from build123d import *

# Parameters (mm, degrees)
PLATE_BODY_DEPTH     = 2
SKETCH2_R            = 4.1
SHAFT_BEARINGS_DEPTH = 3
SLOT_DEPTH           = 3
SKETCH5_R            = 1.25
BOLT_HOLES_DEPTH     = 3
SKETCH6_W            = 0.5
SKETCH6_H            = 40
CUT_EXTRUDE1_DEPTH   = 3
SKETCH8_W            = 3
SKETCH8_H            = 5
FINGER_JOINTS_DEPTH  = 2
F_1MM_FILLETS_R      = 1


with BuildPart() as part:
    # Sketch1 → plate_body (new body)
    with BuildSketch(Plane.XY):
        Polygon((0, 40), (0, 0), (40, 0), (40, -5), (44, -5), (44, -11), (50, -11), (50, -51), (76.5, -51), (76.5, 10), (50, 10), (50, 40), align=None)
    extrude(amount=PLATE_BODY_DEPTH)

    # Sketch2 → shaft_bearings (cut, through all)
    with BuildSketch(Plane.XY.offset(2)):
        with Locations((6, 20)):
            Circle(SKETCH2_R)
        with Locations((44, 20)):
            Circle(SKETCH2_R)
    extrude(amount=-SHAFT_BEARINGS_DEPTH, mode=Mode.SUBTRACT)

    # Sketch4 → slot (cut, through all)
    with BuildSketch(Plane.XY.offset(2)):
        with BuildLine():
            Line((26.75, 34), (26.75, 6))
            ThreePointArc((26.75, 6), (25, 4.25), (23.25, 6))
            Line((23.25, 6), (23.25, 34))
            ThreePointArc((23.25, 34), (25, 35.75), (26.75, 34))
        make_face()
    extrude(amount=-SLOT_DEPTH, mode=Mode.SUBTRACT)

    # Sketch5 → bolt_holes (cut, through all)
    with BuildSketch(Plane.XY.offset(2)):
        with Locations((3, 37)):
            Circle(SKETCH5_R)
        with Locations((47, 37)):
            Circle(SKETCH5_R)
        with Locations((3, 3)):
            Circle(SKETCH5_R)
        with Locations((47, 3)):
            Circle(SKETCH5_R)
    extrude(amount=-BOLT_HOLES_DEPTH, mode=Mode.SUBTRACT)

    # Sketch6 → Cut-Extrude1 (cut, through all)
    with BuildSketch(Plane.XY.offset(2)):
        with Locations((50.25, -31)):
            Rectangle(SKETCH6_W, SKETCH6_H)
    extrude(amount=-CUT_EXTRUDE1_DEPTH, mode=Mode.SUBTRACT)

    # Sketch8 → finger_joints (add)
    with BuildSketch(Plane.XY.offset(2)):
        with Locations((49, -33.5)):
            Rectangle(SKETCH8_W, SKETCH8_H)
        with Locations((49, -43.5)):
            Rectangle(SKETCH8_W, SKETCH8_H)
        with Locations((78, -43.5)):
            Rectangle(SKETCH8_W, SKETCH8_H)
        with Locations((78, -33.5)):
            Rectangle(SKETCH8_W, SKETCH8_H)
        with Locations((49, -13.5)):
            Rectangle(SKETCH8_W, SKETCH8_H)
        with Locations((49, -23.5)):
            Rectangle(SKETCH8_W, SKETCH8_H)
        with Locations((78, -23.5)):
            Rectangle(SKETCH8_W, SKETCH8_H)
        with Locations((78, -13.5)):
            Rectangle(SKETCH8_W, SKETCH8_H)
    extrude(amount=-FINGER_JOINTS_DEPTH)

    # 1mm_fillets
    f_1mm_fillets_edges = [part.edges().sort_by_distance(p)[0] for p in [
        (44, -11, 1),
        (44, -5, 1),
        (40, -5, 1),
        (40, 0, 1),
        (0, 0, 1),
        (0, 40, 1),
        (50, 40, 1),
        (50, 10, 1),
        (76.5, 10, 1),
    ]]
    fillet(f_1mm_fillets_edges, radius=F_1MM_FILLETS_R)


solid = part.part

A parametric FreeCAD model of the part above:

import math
import FreeCAD as App
import Part
import Sketcher
Q = App.Units.Quantity


def edges_at(feature, points):
    """Names of the edges that pass closest to the given points."""
    edges = feature.Shape.Edges
    near = lambda p: min(range(len(edges)), key=lambda i: edges[i].distToShape(Part.Vertex(*p))[0])
    return sorted({f"Edge{near(p) + 1}" for p in points})


def add_polygon(sketch, points):
    """Adds a closed chain of lines whose ends are joined by coincident constraints."""
    first, n = sketch.GeometryCount, len(points)
    for a, b in zip(points, points[1:] + points[:1]):
        sketch.addGeometry(Part.LineSegment(App.Vector(*a, 0), App.Vector(*b, 0)), False)
    for i in range(n):
        sketch.addConstraint(Sketcher.Constraint("Coincident", first + i, 2, first + (i + 1) % n, 1))

doc = App.newDocument("Part")
body = doc.addObject("PartDesign::Body", "Body")

sketch1 = body.newObject("Sketcher::SketchObject", "Sketch")
sketch1.AttachmentSupport = (doc.getObject("XY_Plane"), [""])
sketch1.MapMode = "FlatFace"
add_polygon(sketch1, [(0, 40), (0, 0), (40, 0), (40, -5), (44, -5), (44, -11), (50, -11), (50, -51), (76.5, -51), (76.5, 10), (50, 10), (50, 40)])
sketch1.addConstraint([
    Sketcher.Constraint("Vertical", 0),
    Sketcher.Constraint("Horizontal", 1),
    Sketcher.Constraint("Vertical", 2),
    Sketcher.Constraint("Horizontal", 3),
    Sketcher.Constraint("Vertical", 4),
    Sketcher.Constraint("Horizontal", 5),
    Sketcher.Constraint("Vertical", 6),
    Sketcher.Constraint("Horizontal", 7),
    Sketcher.Constraint("Vertical", 8),
    Sketcher.Constraint("Horizontal", 9),
    Sketcher.Constraint("Vertical", 10),
    Sketcher.Constraint("Horizontal", 11),
    Sketcher.Constraint("Coincident", 0, 2, -1, 1),
    Sketcher.Constraint("Vertical", 6, 2, 9, 2),
    Sketcher.Constraint("Equal", 1, 0),
    Sketcher.Constraint("Equal", 5, 4),
    Sketcher.Constraint("Equal", 0, 6),
    Sketcher.Constraint("DistanceX", 1, 1, 1, 2, Q("40 mm")),
    Sketcher.Constraint("DistanceX", 3, 1, 3, 2, Q("4 mm")),
    Sketcher.Constraint("DistanceX", 5, 1, 5, 2, Q("6 mm")),
    Sketcher.Constraint("DistanceY", 2, 2, 2, 1, Q("5 mm")),
    Sketcher.Constraint("DistanceY", 8, 1, 8, 2, Q("61 mm")),
    Sketcher.Constraint("DistanceX", 7, 1, 7, 2, Q("26.5 mm")),
])
pad1 = body.newObject("PartDesign::Pad", "Pad")
pad1.Profile = sketch1
pad1.Length = 2

sketch2 = body.newObject("Sketcher::SketchObject", "Sketch001")
sketch2.AttachmentSupport = (doc.getObject("XY_Plane"), [""])
sketch2.MapMode = "FlatFace"
sketch2.AttachmentOffset = App.Placement(App.Vector(0, 0, 2), App.Rotation())
sketch2.addGeometry([
    Part.Circle(App.Vector(6, 20, 0), App.Vector(0, 0, 1), 4.1),
    Part.Circle(App.Vector(44, 20, 0), App.Vector(0, 0, 1), 4.1),
], False)
sketch2.addConstraint([
    Sketcher.Constraint("Equal", 0, 1),
    Sketcher.Constraint("Horizontal", 0, 3, 1, 3),
    Sketcher.Constraint("Diameter", 0, Q("8.2 mm")),
    Sketcher.Constraint("DistanceX", -1, 1, 0, 3, Q("6 mm")),
    Sketcher.Constraint("DistanceY", -1, 1, 0, 3, Q("20 mm")),
    Sketcher.Constraint("DistanceX", -1, 1, 1, 3, Q("44 mm")),
])
pocket1 = body.newObject("PartDesign::Pocket", "Pocket")
pocket1.Profile = sketch2
pocket1.Type = "ThroughAll"

sketch3 = body.newObject("Sketcher::SketchObject", "Sketch002")
sketch3.AttachmentSupport = (doc.getObject("XY_Plane"), [""])
sketch3.MapMode = "FlatFace"
sketch3.AttachmentOffset = App.Placement(App.Vector(0, 0, 2), App.Rotation())
sketch3.addGeometry([
    Part.LineSegment(App.Vector(26.8, 6, 0), App.Vector(26.8, 34, 0)),
    Part.ArcOfCircle(Part.Circle(App.Vector(25, 34, 0), App.Vector(0, 0, 1), 1.8), math.radians(0), math.radians(180)),
    Part.LineSegment(App.Vector(23.2, 34, 0), App.Vector(23.2, 6, 0)),
    Part.ArcOfCircle(Part.Circle(App.Vector(25, 6, 0), App.Vector(0, 0, 1), 1.8), math.radians(180), math.radians(360)),
], False)
sketch3.addConstraint([
    Sketcher.Constraint("Tangent", 0, 2, 1, 1),
    Sketcher.Constraint("Tangent", 1, 2, 2, 1),
    Sketcher.Constraint("Tangent", 2, 2, 3, 1),
    Sketcher.Constraint("Tangent", 3, 2, 0, 1),
    Sketcher.Constraint("Vertical", 0),
    Sketcher.Constraint("Vertical", 2),
    Sketcher.Constraint("DistanceY", 0, 1, 0, 2, Q("28 mm")),
    Sketcher.Constraint("Radius", 1, Q("1.75 mm")),
    Sketcher.Constraint("DistanceX", -1, 1, 1, 3, Q("25 mm")),
    Sketcher.Constraint("DistanceY", -1, 1, 1, 3, Q("34 mm")),
])
pocket2 = body.newObject("PartDesign::Pocket", "Pocket001")
pocket2.Profile = sketch3
pocket2.Type = "ThroughAll"

sketch4 = body.newObject("Sketcher::SketchObject", "Sketch003")
sketch4.AttachmentSupport = (doc.getObject("XY_Plane"), [""])
sketch4.MapMode = "FlatFace"
sketch4.AttachmentOffset = App.Placement(App.Vector(0, 0, 2), App.Rotation())
sketch4.addGeometry([
    Part.Circle(App.Vector(3, 37, 0), App.Vector(0, 0, 1), 1.2),
    Part.Circle(App.Vector(47, 37, 0), App.Vector(0, 0, 1), 1.2),
    Part.Circle(App.Vector(3, 3, 0), App.Vector(0, 0, 1), 1.2),
    Part.Circle(App.Vector(47, 3, 0), App.Vector(0, 0, 1), 1.2),
], False)
sketch4.addConstraint([
    Sketcher.Constraint("Equal", 0, 1),
    Sketcher.Constraint("Equal", 1, 2),
    Sketcher.Constraint("Equal", 2, 3),
    Sketcher.Constraint("Horizontal", 0, 3, 1, 3),
    Sketcher.Constraint("Horizontal", 2, 3, 3, 3),
    Sketcher.Constraint("Vertical", 0, 3, 2, 3),
    Sketcher.Constraint("Vertical", 1, 3, 3, 3),
    Sketcher.Constraint("Diameter", 0, Q("2.5 mm")),
    Sketcher.Constraint("DistanceX", -1, 1, 0, 3, Q("3 mm")),
    Sketcher.Constraint("DistanceY", -1, 1, 0, 3, Q("37 mm")),
    Sketcher.Constraint("DistanceX", -1, 1, 1, 3, Q("47 mm")),
    Sketcher.Constraint("DistanceY", -1, 1, 2, 3, Q("3 mm")),
])
pocket3 = body.newObject("PartDesign::Pocket", "Pocket002")
pocket3.Profile = sketch4
pocket3.Type = "ThroughAll"

sketch5 = body.newObject("Sketcher::SketchObject", "Sketch004")
sketch5.AttachmentSupport = (doc.getObject("XY_Plane"), [""])
sketch5.MapMode = "FlatFace"
sketch5.AttachmentOffset = App.Placement(App.Vector(0, 0, 2), App.Rotation())
add_polygon(sketch5, [(50, -11), (50, -51), (50.5, -51), (50.5, -11)])
sketch5.addConstraint([
    Sketcher.Constraint("Vertical", 0),
    Sketcher.Constraint("Horizontal", 1),
    Sketcher.Constraint("Vertical", 2),
    Sketcher.Constraint("Horizontal", 3),
    Sketcher.Constraint("DistanceY", 0, 2, 0, 1, Q("40 mm")),
    Sketcher.Constraint("DistanceX", 1, 1, 1, 2, Q("0.5 mm")),
    Sketcher.Constraint("DistanceX", -1, 1, 0, 2, Q("50 mm")),
    Sketcher.Constraint("DistanceY", 0, 2, -1, 1, Q("51 mm")),
])
pocket4 = body.newObject("PartDesign::Pocket", "Pocket003")
pocket4.Profile = sketch5
pocket4.Type = "ThroughAll"

sketch6 = body.newObject("Sketcher::SketchObject", "Sketch005")
sketch6.AttachmentSupport = (doc.getObject("XY_Plane"), [""])
sketch6.MapMode = "FlatFace"
sketch6.AttachmentOffset = App.Placement(App.Vector(0, 0, 2), App.Rotation())
add_polygon(sketch6, [(47.5, -31), (47.5, -36), (50.5, -36), (50.5, -31)])
add_polygon(sketch6, [(47.5, -41), (47.5, -46), (50.5, -46), (50.5, -41)])
add_polygon(sketch6, [(76.5, -41), (76.5, -46), (79.5, -46), (79.5, -41)])
add_polygon(sketch6, [(76.5, -31), (76.5, -36), (79.5, -36), (79.5, -31)])
add_polygon(sketch6, [(47.5, -11), (47.5, -16), (50.5, -16), (50.5, -11)])
add_polygon(sketch6, [(47.5, -21), (47.5, -26), (50.5, -26), (50.5, -21)])
add_polygon(sketch6, [(76.5, -21), (76.5, -26), (79.5, -26), (79.5, -21)])
add_polygon(sketch6, [(76.5, -11), (76.5, -16), (79.5, -16), (79.5, -11)])
sketch6.addConstraint([
    Sketcher.Constraint("Vertical", 0),
    Sketcher.Constraint("Horizontal", 1),
    Sketcher.Constraint("Vertical", 2),
    Sketcher.Constraint("Horizontal", 3),
    Sketcher.Constraint("Vertical", 4),
    Sketcher.Constraint("Horizontal", 5),
    Sketcher.Constraint("Vertical", 6),
    Sketcher.Constraint("Horizontal", 7),
    Sketcher.Constraint("Vertical", 8),
    Sketcher.Constraint("Horizontal", 9),
    Sketcher.Constraint("Vertical", 10),
    Sketcher.Constraint("Horizontal", 11),
    Sketcher.Constraint("Vertical", 12),
    Sketcher.Constraint("Horizontal", 13),
    Sketcher.Constraint("Vertical", 14),
    Sketcher.Constraint("Horizontal", 15),
    Sketcher.Constraint("Vertical", 16),
    Sketcher.Constraint("Horizontal", 17),
    Sketcher.Constraint("Vertical", 18),
    Sketcher.Constraint("Horizontal", 19),
    Sketcher.Constraint("Vertical", 20),
    Sketcher.Constraint("Horizontal", 21),
    Sketcher.Constraint("Vertical", 22),
    Sketcher.Constraint("Horizontal", 23),
    Sketcher.Constraint("Vertical", 24),
    Sketcher.Constraint("Horizontal", 25),
    Sketcher.Constraint("Vertical", 26),
    Sketcher.Constraint("Horizontal", 27),
    Sketcher.Constraint("Vertical", 28),
    Sketcher.Constraint("Horizontal", 29),
    Sketcher.Constraint("Vertical", 30),
    Sketcher.Constraint("Horizontal", 31),
    Sketcher.Constraint("Horizontal", 5, 2, 8, 2),
    Sketcher.Constraint("Horizontal", 7, 2, 10, 2),
    Sketcher.Constraint("Horizontal", 1, 2, 12, 2),
    Sketcher.Constraint("Horizontal", 3, 2, 14, 2),
    Sketcher.Constraint("Horizontal", 21, 2, 24, 2),
    Sketcher.Constraint("Horizontal", 23, 2, 26, 2),
    Sketcher.Constraint("Horizontal", 17, 2, 28, 2),
    Sketcher.Constraint("Horizontal", 19, 2, 30, 2),
    Sketcher.Constraint("Vertical", 3, 2, 4, 2),
    Sketcher.Constraint("Vertical", 2, 2, 5, 2),
    Sketcher.Constraint("Vertical", 11, 2, 12, 2),
    Sketcher.Constraint("Vertical", 10, 2, 13, 2),
    Sketcher.Constraint("Vertical", 7, 2, 16, 2),
    Sketcher.Constraint("Vertical", 6, 2, 17, 2),
    Sketcher.Constraint("Vertical", 19, 2, 20, 2),
    Sketcher.Constraint("Vertical", 18, 2, 21, 2),
    Sketcher.Constraint("Vertical", 15, 2, 24, 2),
    Sketcher.Constraint("Vertical", 14, 2, 25, 2),
    Sketcher.Constraint("Vertical", 27, 2, 28, 2),
    Sketcher.Constraint("Vertical", 26, 2, 29, 2),
    Sketcher.Constraint("Equal", 7, 9),
    Sketcher.Constraint("Equal", 2, 4),
    Sketcher.Constraint("Equal", 14, 16),
    Sketcher.Constraint("Equal", 18, 20),
    Sketcher.Constraint("DistanceX", 1, 1, 1, 2, Q("3 mm")),
    Sketcher.Constraint("DistanceY", 0, 2, 0, 1, Q("5 mm")),
    Sketcher.Constraint("DistanceY", 0, 2, -1, 1, Q("36 mm")),
    Sketcher.Constraint("DistanceY", 4, 2, -1, 1, Q("46 mm")),
    Sketcher.Constraint("DistanceY", 16, 2, -1, 1, Q("16 mm")),
    Sketcher.Constraint("DistanceY", 20, 2, -1, 1, Q("26 mm")),
    Sketcher.Constraint("DistanceX", 5, 2, 8, 2, Q("26 mm")),
    Sketcher.Constraint("DistanceX", -1, 1, 0, 2, Q("47.5 mm")),
])
pad2 = body.newObject("PartDesign::Pad", "Pad001")
pad2.Profile = sketch6
pad2.Length = 2
pad2.Reversed = True
doc.recompute()

fillet = body.newObject("PartDesign::Fillet", "Fillet")
fillet.Base = (pad2, edges_at(pad2, [
    (44, -11, 1),
    (44, -5, 1),
    (40, -5, 1),
    (40, 0, 1),
    (0, 0, 1),
    (0, 40, 1),
    (50, 40, 1),
    (50, 10, 1),
    (76.5, 10, 1),
]))
fillet.Radius = 1

doc.recompute()
